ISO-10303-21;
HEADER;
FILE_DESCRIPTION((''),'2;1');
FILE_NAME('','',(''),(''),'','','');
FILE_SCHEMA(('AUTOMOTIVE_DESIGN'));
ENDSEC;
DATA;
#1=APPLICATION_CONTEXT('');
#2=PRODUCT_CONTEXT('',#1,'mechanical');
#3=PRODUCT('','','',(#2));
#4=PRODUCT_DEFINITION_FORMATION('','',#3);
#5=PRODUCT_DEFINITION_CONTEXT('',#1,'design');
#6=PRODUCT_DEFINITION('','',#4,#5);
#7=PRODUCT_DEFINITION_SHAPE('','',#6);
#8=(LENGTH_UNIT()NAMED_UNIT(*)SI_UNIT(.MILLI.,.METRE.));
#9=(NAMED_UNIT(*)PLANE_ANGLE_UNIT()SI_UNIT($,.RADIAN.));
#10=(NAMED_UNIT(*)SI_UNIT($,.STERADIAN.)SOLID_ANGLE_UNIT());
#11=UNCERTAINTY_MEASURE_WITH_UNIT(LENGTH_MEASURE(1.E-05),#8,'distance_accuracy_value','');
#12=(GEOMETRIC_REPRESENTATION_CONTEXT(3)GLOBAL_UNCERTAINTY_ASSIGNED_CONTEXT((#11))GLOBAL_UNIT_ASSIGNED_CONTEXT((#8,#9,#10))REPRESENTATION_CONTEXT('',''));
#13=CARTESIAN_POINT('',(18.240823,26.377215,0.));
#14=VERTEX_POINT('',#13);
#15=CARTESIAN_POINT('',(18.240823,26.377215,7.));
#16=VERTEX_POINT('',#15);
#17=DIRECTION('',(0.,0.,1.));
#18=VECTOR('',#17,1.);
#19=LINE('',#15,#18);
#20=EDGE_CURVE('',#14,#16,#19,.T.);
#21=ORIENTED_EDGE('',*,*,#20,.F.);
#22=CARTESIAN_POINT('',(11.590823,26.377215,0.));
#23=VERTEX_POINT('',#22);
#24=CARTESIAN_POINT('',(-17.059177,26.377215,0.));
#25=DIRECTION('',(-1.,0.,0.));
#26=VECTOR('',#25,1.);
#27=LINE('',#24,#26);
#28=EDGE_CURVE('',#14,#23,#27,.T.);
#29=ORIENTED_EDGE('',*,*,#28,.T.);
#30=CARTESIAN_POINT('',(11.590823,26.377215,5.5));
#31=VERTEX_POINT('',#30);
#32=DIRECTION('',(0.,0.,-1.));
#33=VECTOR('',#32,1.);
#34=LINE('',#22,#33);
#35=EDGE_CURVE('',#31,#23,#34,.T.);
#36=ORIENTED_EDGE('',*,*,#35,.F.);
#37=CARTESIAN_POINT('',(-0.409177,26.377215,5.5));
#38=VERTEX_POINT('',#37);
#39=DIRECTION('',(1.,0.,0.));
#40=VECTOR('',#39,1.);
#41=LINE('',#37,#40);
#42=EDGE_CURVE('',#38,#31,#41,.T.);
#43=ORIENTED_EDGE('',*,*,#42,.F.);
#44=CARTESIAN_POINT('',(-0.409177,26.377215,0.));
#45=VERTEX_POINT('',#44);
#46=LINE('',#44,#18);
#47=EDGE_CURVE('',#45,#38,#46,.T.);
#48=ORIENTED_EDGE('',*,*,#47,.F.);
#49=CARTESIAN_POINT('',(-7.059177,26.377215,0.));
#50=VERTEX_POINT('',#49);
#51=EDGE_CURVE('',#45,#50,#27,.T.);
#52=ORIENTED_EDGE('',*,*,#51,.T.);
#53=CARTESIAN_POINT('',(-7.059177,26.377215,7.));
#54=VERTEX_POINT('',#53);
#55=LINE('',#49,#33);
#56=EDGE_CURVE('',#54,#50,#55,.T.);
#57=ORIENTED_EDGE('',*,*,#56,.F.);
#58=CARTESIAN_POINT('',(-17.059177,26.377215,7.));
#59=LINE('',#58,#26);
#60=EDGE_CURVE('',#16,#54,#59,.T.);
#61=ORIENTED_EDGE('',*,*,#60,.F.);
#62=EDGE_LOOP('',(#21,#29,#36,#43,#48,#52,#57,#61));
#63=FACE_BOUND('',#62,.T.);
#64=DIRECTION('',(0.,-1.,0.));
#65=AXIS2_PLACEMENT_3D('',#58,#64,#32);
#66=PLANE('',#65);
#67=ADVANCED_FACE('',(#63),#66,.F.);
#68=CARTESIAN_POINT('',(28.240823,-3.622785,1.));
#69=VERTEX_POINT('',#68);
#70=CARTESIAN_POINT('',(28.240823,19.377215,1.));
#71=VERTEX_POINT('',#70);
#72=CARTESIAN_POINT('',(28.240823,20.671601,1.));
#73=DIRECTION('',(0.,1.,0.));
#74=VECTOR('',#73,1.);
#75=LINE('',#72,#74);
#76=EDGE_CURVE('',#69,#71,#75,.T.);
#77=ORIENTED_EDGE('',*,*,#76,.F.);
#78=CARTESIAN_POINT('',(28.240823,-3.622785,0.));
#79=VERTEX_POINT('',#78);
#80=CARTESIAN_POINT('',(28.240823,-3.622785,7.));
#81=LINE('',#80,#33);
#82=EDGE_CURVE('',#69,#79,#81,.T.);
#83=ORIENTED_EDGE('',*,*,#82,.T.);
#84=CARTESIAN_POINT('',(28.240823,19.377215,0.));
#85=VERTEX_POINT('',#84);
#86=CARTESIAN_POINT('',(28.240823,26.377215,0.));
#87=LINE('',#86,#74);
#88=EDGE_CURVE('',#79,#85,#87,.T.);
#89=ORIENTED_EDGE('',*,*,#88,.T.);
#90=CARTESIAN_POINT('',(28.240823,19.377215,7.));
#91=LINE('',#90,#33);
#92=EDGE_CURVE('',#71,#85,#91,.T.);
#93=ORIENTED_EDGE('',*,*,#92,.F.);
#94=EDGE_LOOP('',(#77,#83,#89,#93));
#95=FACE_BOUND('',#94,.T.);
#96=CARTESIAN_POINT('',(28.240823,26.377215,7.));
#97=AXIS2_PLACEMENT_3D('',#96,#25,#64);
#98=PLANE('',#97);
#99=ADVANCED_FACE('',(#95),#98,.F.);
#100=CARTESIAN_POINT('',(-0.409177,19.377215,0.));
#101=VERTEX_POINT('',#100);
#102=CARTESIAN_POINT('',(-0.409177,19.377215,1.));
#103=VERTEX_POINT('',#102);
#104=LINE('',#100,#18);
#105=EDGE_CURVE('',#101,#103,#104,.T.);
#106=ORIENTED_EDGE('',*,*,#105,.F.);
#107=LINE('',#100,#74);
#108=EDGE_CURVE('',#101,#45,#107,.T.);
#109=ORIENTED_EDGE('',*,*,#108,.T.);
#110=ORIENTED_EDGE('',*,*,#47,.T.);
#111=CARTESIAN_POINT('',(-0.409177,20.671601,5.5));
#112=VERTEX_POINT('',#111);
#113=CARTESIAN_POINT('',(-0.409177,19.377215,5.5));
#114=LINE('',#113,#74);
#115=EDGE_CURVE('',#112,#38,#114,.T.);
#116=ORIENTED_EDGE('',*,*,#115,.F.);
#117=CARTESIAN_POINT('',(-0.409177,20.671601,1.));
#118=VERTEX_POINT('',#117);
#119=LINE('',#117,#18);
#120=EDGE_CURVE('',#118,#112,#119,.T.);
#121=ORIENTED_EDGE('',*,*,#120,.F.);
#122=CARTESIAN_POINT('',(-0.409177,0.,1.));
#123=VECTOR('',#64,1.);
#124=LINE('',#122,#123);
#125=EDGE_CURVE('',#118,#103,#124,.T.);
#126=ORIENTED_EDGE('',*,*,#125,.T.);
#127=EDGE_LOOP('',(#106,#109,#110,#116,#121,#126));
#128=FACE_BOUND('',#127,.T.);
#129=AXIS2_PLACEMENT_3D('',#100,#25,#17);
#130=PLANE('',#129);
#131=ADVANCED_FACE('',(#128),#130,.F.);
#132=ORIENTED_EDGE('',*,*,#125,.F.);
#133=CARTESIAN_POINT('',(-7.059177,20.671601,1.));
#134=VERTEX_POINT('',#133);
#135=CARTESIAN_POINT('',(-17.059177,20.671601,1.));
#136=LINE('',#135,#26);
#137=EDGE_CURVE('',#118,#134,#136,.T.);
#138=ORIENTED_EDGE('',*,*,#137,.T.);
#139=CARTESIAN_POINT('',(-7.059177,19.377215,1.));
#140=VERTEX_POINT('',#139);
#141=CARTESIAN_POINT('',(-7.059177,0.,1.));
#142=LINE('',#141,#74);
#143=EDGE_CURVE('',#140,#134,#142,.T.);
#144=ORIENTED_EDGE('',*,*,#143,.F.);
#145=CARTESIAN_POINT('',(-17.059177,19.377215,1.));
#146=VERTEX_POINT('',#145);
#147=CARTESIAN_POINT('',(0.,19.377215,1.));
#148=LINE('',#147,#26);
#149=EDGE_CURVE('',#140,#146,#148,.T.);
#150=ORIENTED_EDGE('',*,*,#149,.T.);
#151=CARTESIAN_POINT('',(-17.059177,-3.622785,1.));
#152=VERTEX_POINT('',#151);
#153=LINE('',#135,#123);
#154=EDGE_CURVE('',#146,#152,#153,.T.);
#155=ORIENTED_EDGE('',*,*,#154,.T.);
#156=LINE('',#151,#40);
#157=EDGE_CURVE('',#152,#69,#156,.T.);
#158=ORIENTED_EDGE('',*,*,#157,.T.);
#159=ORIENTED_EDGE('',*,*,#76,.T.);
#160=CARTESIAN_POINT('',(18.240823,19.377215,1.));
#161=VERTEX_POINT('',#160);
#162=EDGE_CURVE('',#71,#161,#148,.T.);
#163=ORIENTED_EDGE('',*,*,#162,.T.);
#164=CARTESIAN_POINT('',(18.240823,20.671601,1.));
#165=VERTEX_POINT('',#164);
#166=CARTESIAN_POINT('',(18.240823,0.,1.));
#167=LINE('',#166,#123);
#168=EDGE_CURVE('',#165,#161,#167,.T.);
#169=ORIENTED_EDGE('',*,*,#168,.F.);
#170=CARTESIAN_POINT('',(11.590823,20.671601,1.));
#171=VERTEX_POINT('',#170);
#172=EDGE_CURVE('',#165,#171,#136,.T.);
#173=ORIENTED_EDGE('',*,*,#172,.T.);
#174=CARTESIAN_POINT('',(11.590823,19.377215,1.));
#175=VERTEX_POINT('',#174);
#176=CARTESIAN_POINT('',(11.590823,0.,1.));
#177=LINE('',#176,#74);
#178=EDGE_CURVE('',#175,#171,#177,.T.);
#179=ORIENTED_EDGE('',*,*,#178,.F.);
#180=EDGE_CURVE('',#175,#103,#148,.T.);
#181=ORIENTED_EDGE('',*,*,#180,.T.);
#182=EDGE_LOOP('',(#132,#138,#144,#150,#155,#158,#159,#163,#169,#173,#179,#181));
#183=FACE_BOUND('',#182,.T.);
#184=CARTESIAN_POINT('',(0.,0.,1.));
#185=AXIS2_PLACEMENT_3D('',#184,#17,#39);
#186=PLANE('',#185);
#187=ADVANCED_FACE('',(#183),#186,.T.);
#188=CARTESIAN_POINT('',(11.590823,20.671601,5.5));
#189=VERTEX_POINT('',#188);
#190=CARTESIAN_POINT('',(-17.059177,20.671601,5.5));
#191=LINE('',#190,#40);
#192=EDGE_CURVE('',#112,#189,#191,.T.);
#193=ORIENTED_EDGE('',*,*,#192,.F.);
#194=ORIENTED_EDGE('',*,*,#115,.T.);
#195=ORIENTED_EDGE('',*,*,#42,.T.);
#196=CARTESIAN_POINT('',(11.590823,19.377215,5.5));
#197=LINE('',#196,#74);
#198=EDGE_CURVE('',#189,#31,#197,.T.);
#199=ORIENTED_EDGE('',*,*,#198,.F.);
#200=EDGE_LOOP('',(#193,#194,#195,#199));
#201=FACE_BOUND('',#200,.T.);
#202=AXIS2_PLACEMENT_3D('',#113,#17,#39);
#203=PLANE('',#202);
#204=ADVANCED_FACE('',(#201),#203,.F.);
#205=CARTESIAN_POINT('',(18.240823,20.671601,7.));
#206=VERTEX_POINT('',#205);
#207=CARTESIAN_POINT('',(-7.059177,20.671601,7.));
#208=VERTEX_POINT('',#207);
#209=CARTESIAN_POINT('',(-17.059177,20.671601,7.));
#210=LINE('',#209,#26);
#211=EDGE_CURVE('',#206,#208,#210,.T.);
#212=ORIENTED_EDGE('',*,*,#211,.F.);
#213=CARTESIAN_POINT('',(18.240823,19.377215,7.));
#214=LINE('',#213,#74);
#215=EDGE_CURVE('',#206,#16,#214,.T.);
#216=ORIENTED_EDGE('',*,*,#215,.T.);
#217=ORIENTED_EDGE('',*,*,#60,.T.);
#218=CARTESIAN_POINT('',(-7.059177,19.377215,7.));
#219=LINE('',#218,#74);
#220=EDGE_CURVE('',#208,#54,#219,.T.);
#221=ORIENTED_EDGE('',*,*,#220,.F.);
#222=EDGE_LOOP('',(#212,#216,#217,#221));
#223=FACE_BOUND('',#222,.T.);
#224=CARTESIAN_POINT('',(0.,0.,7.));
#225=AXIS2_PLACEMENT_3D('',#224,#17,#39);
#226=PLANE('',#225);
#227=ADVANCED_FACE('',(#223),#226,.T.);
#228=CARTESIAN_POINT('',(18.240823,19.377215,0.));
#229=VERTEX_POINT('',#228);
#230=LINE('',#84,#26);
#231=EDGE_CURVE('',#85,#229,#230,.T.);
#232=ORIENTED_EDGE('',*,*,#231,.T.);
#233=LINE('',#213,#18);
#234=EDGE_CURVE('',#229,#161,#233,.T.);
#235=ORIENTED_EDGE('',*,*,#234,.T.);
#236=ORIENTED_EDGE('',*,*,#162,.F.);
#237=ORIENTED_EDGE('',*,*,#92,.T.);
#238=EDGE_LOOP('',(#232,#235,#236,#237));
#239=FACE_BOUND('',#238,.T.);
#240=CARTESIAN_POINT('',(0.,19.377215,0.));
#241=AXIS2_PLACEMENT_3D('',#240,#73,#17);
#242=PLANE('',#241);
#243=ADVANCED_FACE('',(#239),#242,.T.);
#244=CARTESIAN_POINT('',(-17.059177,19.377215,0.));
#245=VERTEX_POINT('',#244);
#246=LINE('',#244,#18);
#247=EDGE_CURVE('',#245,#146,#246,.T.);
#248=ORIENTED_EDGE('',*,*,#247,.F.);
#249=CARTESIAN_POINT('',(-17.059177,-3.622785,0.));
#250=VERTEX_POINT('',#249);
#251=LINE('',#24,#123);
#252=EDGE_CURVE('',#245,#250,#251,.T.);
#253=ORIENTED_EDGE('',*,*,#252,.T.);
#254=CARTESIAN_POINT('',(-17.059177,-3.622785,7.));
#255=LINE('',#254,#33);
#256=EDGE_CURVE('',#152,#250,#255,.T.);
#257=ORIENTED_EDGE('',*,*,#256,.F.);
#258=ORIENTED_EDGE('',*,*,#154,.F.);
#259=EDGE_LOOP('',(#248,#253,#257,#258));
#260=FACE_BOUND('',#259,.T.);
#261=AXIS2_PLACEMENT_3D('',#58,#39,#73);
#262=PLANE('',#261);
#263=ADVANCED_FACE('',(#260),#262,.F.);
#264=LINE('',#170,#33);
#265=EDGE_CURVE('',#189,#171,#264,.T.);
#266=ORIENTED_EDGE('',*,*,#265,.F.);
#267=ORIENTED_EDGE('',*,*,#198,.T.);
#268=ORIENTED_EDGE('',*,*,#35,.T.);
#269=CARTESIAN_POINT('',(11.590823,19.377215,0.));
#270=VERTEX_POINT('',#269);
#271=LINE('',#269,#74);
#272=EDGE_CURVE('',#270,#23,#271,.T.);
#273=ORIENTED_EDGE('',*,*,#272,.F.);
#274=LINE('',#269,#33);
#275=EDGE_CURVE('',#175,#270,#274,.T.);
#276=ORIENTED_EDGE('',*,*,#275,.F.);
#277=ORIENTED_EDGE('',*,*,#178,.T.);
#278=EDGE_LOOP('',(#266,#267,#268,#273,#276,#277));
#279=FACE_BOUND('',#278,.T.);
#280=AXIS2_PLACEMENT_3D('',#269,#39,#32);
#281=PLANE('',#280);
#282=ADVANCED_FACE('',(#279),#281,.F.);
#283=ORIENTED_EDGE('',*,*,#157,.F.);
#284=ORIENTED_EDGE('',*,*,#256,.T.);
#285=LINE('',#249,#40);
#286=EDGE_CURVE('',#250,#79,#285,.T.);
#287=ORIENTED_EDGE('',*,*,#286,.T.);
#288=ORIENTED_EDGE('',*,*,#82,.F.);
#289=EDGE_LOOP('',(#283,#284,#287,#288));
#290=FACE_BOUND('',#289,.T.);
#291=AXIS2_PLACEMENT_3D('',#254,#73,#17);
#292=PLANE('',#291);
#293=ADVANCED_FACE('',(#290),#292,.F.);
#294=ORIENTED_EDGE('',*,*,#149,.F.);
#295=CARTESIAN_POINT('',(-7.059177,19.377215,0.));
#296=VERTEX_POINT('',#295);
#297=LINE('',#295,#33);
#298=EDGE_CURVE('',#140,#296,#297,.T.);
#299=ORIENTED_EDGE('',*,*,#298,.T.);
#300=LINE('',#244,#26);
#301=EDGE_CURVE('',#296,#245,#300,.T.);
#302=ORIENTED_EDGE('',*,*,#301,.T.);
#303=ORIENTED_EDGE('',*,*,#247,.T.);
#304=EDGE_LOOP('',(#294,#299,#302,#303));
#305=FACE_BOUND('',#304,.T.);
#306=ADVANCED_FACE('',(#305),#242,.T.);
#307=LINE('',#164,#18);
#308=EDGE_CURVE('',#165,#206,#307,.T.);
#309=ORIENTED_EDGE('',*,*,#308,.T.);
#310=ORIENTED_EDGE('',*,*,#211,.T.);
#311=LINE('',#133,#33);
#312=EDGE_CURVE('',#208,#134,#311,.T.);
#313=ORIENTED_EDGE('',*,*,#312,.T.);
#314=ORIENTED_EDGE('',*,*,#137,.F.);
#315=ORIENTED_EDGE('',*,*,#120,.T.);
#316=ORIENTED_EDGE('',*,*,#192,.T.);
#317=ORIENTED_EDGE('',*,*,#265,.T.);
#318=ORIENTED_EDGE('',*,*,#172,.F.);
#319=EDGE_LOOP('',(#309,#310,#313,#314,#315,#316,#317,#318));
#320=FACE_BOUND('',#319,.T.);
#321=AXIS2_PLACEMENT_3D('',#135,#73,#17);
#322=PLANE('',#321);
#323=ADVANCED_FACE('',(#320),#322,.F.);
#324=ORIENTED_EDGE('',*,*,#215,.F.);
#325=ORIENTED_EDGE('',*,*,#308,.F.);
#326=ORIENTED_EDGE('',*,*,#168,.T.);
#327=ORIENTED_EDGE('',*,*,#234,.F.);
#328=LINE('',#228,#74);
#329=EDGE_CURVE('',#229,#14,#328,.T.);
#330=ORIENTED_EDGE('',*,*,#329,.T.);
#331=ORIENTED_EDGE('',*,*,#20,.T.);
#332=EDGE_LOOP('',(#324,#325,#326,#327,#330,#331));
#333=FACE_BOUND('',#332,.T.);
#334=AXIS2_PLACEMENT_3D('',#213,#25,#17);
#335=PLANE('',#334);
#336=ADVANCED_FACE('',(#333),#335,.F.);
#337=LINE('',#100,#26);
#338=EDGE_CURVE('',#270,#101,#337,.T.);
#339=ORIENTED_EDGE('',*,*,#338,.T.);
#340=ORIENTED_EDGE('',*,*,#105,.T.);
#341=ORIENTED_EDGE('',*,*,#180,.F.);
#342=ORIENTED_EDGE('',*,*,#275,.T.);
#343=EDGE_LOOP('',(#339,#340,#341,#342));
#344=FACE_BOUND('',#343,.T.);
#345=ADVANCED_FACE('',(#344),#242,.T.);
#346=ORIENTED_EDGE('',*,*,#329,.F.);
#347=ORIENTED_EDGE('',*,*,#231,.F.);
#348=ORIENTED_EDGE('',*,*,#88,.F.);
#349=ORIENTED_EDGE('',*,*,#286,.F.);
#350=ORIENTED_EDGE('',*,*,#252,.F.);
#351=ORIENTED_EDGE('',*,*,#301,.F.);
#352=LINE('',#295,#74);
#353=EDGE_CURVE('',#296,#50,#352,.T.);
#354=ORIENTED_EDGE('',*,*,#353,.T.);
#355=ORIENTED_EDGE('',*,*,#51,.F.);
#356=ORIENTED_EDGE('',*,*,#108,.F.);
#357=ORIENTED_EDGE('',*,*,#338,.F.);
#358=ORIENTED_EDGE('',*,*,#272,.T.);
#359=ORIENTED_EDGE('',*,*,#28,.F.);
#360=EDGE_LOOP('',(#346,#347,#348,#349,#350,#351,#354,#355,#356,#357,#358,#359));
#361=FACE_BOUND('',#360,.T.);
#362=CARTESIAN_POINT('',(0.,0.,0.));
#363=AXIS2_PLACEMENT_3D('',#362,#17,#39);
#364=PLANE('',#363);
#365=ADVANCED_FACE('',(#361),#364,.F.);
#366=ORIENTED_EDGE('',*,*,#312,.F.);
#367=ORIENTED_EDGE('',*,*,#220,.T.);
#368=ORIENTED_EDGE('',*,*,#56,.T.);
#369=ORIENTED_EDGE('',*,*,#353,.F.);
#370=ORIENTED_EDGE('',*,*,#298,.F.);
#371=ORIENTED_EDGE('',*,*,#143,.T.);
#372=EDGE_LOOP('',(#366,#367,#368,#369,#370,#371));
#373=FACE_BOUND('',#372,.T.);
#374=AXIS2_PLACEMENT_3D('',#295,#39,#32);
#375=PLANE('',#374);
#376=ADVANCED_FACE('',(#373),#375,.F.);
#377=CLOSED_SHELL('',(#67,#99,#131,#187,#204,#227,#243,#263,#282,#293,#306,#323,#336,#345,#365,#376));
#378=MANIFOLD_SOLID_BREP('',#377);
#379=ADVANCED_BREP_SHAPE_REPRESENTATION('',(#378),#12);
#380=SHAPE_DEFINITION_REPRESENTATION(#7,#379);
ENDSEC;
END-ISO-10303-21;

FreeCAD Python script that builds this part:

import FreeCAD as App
import Part
import Sketcher

V = App.Vector

doc = App.newDocument("Part")
body = doc.addObject("PartDesign::Body", "Body")

# Sketch on XY plane
sketch1 = body.newObject("Sketcher::SketchObject", "Sketch")
sketch1.AttachmentSupport = (doc.getObject("XY_Plane"), [""])
sketch1.MapMode = "FlatFace"
sketch1.addGeometry(Part.LineSegment(V(-17, 26, 0), V(-17, -4, 0)), False)
sketch1.addGeometry(Part.LineSegment(V(-17, -4, 0), V(28, -4, 0)), False)
sketch1.addGeometry(Part.LineSegment(V(28, -4, 0), V(28, 26, 0)), False)
sketch1.addGeometry(Part.LineSegment(V(28, 26, 0), V(-17, 26, 0)), False)
sketch1.addConstraint(Sketcher.Constraint("Coincident", 0, 2, 1, 1))
sketch1.addConstraint(Sketcher.Constraint("Coincident", 1, 2, 2, 1))
sketch1.addConstraint(Sketcher.Constraint("Coincident", 2, 2, 3, 1))
sketch1.addConstraint(Sketcher.Constraint("Coincident", 3, 2, 0, 1))
sketch1.addConstraint(Sketcher.Constraint("Vertical", 0))
sketch1.addConstraint(Sketcher.Constraint("Horizontal", 1))
sketch1.addConstraint(Sketcher.Constraint("Vertical", 2))
sketch1.addConstraint(Sketcher.Constraint("Horizontal", 3))
sketch1.addConstraint(Sketcher.Constraint("DistanceY", 0, 2, 0, 1, 30.0))
sketch1.addConstraint(Sketcher.Constraint("DistanceX", 1, 1, 1, 2, 45.3))
sketch1.addConstraint(Sketcher.Constraint("DistanceX", 0, 2, -1, 1, 17.059177))
sketch1.addConstraint(Sketcher.Constraint("DistanceY", 0, 2, -1, 1, 3.622785))
pad1 = body.newObject("PartDesign::Pad", "Pad")
pad1.Profile = sketch1
pad1.Length = 7

# Sketch on XY plane
sketch2 = body.newObject("Sketcher::SketchObject", "Sketch001")
sketch2.AttachmentSupport = (doc.getObject("XY_Plane"), [""])
sketch2.MapMode = "FlatFace"
sketch2.AttachmentOffset = App.Placement(V(0, 0, 7), App.Rotation())
sketch2.addGeometry(Part.LineSegment(V(-17, 21, 0), V(-17, -4, 0)), False)
sketch2.addGeometry(Part.LineSegment(V(-17, -4, 0), V(28, -4, 0)), False)
sketch2.addGeometry(Part.LineSegment(V(28, -4, 0), V(28, 21, 0)), False)
sketch2.addGeometry(Part.LineSegment(V(28, 21, 0), V(-17, 21, 0)), False)
sketch2.addConstraint(Sketcher.Constraint("Coincident", 0, 2, 1, 1))
sketch2.addConstraint(Sketcher.Constraint("Coincident", 1, 2, 2, 1))
sketch2.addConstraint(Sketcher.Constraint("Coincident", 2, 2, 3, 1))
sketch2.addConstraint(Sketcher.Constraint("Coincident", 3, 2, 0, 1))
sketch2.addConstraint(Sketcher.Constraint("Vertical", 0))
sketch2.addConstraint(Sketcher.Constraint("Horizontal", 1))
sketch2.addConstraint(Sketcher.Constraint("Vertical", 2))
sketch2.addConstraint(Sketcher.Constraint("Horizontal", 3))
sketch2.addConstraint(Sketcher.Constraint("DistanceX", 1, 1, 1, 2, 45.3))
sketch2.addConstraint(Sketcher.Constraint("DistanceY", -1, 1, 2, 2, 20.671601))
sketch2.addConstraint(Sketcher.Constraint("DistanceY", 0, 2, 0, 1, 24.294386))
sketch2.addConstraint(Sketcher.Constraint("DistanceX", 0, 2, -1, 1, 17.059177))
pocket1 = body.newObject("PartDesign::Pocket", "Pocket")
pocket1.Profile = sketch2
pocket1.Length = 6

# Sketch on XZ plane
sketch3 = body.newObject("Sketcher::SketchObject", "Sketch002")
sketch3.AttachmentSupport = (doc.getObject("XZ_Plane"), [""])
sketch3.MapMode = "FlatFace"
sketch3.AttachmentOffset = App.Placement(V(0, 0, -26.377215), App.Rotation())
sketch3.addGeometry(Part.LineSegment(V(0, 0, 0), V(0, 6, 0)), False)
sketch3.addGeometry(Part.LineSegment(V(0, 6, 0), V(12, 6, 0)), False)
sketch3.addGeometry(Part.LineSegment(V(12, 6, 0), V(12, 0, 0)), False)
sketch3.addGeometry(Part.LineSegment(V(12, 0, 0), V(0, 0, 0)), False)
sketch3.addGeometry(Part.LineSegment(V(-17, 0, 0), V(-17, 7, 0)), False)
sketch3.addGeometry(Part.LineSegment(V(-17, 7, 0), V(-7, 7, 0)), False)
sketch3.addGeometry(Part.LineSegment(V(-7, 7, 0), V(-7, 0, 0)), False)
sketch3.addGeometry(Part.LineSegment(V(-7, 0, 0), V(-17, 0, 0)), False)
sketch3.addGeometry(Part.LineSegment(V(18, 0, 0), V(18, 7, 0)), False)
sketch3.addGeometry(Part.LineSegment(V(18, 7, 0), V(28, 7, 0)), False)
sketch3.addGeometry(Part.LineSegment(V(28, 7, 0), V(28, 0, 0)), False)
sketch3.addGeometry(Part.LineSegment(V(28, 0, 0), V(18, 0, 0)), False)
sketch3.addConstraint(Sketcher.Constraint("Coincident", 0, 2, 1, 1))
sketch3.addConstraint(Sketcher.Constraint("Coincident", 1, 2, 2, 1))
sketch3.addConstraint(Sketcher.Constraint("Coincident", 2, 2, 3, 1))
sketch3.addConstraint(Sketcher.Constraint("Coincident", 3, 2, 0, 1))
sketch3.addConstraint(Sketcher.Constraint("Coincident", 4, 2, 5, 1))
sketch3.addConstraint(Sketcher.Constraint("Coincident", 5, 2, 6, 1))
sketch3.addConstraint(Sketcher.Constraint("Coincident", 6, 2, 7, 1))
sketch3.addConstraint(Sketcher.Constraint("Coincident", 7, 2, 4, 1))
sketch3.addConstraint(Sketcher.Constraint("Coincident", 8, 2, 9, 1))
sketch3.addConstraint(Sketcher.Constraint("Coincident", 9, 2, 10, 1))
sketch3.addConstraint(Sketcher.Constraint("Coincident", 10, 2, 11, 1))
sketch3.addConstraint(Sketcher.Constraint("Coincident", 11, 2, 8, 1))
sketch3.addConstraint(Sketcher.Constraint("Vertical", 0))
sketch3.addConstraint(Sketcher.Constraint("Horizontal", 1))
sketch3.addConstraint(Sketcher.Constraint("Vertical", 2))
sketch3.addConstraint(Sketcher.Constraint("Horizontal", 3))
sketch3.addConstraint(Sketcher.Constraint("Vertical", 4))
sketch3.addConstraint(Sketcher.Constraint("Horizontal", 5))
sketch3.addConstraint(Sketcher.Constraint("Vertical", 6))
sketch3.addConstraint(Sketcher.Constraint("Horizontal", 7))
sketch3.addConstraint(Sketcher.Constraint("Vertical", 8))
sketch3.addConstraint(Sketcher.Constraint("Horizontal", 9))
sketch3.addConstraint(Sketcher.Constraint("Vertical", 10))
sketch3.addConstraint(Sketcher.Constraint("Horizontal", 11))
sketch3.addConstraint(Sketcher.Constraint("PointOnObject", 2, 2, -1))
sketch3.addConstraint(Sketcher.Constraint("PointOnObject", 6, 2, -1))
sketch3.addConstraint(Sketcher.Constraint("PointOnObject", 10, 2, -1))
sketch3.addConstraint(Sketcher.Constraint("Horizontal", 5, 2, 8, 2))
sketch3.addConstraint(Sketcher.Constraint("Equal", 7, 9))
sketch3.addConstraint(Sketcher.Constraint("DistanceX", 1, 1, 1, 2, 12.0))
sketch3.addConstraint(Sketcher.Constraint("DistanceX", 5, 1, 5, 2, 10.0))
sketch3.addConstraint(Sketcher.Constraint("DistanceY", 4, 1, 4, 2, 7.0))
sketch3.addConstraint(Sketcher.Constraint("DistanceY", 0, 1, 0, 2, 5.5))
sketch3.addConstraint(Sketcher.Constraint("DistanceX", 5, 2, 8, 2, 25.3))
sketch3.addConstraint(Sketcher.Constraint("DistanceX", 4, 2, 0, 2, 16.65))
sketch3.addConstraint(Sketcher.Constraint("DistanceX", 0, 2, -1, 1, 0.409177))
pocket2 = body.newObject("PartDesign::Pocket", "Pocket001")
pocket2.Profile = sketch3
pocket2.Length = 7
pocket2.Reversed = True

doc.recompute()
